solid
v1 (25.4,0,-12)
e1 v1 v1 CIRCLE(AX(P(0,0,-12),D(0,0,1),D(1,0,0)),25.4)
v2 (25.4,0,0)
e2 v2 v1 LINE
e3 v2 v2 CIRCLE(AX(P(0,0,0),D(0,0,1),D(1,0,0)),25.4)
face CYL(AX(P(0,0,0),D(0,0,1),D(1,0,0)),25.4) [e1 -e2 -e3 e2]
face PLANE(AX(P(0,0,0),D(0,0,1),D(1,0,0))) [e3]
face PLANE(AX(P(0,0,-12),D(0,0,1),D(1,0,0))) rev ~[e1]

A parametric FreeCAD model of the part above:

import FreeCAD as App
import Part
import Sketcher
from FreeCAD import Vector

doc = App.newDocument("Part")
body = doc.addObject("PartDesign::Body", "Body")

sketch1 = body.newObject("Sketcher::SketchObject", "Sketch")
sketch1.AttachmentSupport = (doc.getObject("XY_Plane"), [""])
sketch1.MapMode = "FlatFace"
sketch1.addGeometry(Part.Circle(Vector(0, 0, 0), Vector(0, 0, 1), 25), False)
sketch1.addConstraint([
    Sketcher.Constraint("Coincident", 0, 3, -1, 1),
    Sketcher.Constraint("Diameter", 0, 50.8),
])
pad1 = body.newObject("PartDesign::Pad", "Pad")
pad1.Profile = sketch1
pad1.Length = 12
pad1.Reversed = True

doc.recompute()
